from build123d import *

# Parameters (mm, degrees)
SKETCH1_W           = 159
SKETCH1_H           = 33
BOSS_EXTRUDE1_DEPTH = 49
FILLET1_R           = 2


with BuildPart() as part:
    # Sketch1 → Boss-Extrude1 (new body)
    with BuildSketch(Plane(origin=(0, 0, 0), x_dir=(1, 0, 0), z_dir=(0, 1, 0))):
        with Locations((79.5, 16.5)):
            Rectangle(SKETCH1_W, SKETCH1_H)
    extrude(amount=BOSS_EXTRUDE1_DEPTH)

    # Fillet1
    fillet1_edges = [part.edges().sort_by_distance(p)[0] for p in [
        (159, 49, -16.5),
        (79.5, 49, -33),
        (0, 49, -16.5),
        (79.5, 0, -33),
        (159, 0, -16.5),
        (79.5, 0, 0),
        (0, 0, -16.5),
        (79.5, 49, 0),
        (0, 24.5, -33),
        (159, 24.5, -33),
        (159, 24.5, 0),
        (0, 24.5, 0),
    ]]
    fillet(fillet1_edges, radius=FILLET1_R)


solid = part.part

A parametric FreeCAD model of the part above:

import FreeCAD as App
import Part
import Sketcher

doc = App.newDocument("Part")
params = doc.addObject("Spreadsheet::Sheet", "Params")
for row, (alias, value) in enumerate([
    ("sketch1_width", "159 mm"),
    ("sketch1_height", "33 mm"),
    ("pad1_length", "49 mm"),
    ("fillet_radius", "2 mm"),
], start=1):
    params.set(f"A{row}", alias)
    params.set(f"B{row}", "=" + value)
    params.setAlias(f"B{row}", alias)

body = doc.addObject("PartDesign::Body", "Body")

sketch1 = doc.addObject("Sketcher::SketchObject", "Sketch")
body.addObject(sketch1)
sketch1.AttachmentSupport = (doc.XZ_Plane, [""])
sketch1.MapMode = "FlatFace"
sketch1.addGeometry([
    Part.LineSegment(App.Vector(0, -33, 0), App.Vector(0, 0, 0)),
    Part.LineSegment(App.Vector(0, 0, 0), App.Vector(159, 0, 0)),
    Part.LineSegment(App.Vector(159, 0, 0), App.Vector(159, -33, 0)),
    Part.LineSegment(App.Vector(159, -33, 0), App.Vector(0, -33, 0)),
], False)
sketch1.addConstraint([
    Sketcher.Constraint("Coincident", 0, 2, 1, 1),
    Sketcher.Constraint("Coincident", 1, 2, 2, 1),
    Sketcher.Constraint("Coincident", 2, 2, 3, 1),
    Sketcher.Constraint("Coincident", 3, 2, 0, 1),
    Sketcher.Constraint("Vertical", 0),
    Sketcher.Constraint("Horizontal", 1),
    Sketcher.Constraint("Vertical", 2),
    Sketcher.Constraint("Horizontal", 3),
    Sketcher.Constraint("Coincident", 0, 2, -1, 1),
    Sketcher.Constraint("DistanceX", 1, 1, 1, 2, 159.0),
    Sketcher.Constraint("DistanceY", 0, 1, 0, 2, 33.0),
])
sketch1.setExpression("Constraints[9]", "Params.sketch1_width")
sketch1.setExpression("Constraints[10]", "Params.sketch1_height")
pad1 = doc.addObject("PartDesign::Pad", "Pad")
body.addObject(pad1)
pad1.Profile = sketch1
pad1.setExpression("Length", "Params.pad1_length")
pad1.Reversed = True
doc.recompute()

fillet = doc.addObject("PartDesign::Fillet", "Fillet")
body.addObject(fillet)
fillet.Base = (pad1, ["Edge1"])
fillet.UseAllEdges = True
fillet.setExpression("Radius", "Params.fillet_radius")

doc.recompute()
